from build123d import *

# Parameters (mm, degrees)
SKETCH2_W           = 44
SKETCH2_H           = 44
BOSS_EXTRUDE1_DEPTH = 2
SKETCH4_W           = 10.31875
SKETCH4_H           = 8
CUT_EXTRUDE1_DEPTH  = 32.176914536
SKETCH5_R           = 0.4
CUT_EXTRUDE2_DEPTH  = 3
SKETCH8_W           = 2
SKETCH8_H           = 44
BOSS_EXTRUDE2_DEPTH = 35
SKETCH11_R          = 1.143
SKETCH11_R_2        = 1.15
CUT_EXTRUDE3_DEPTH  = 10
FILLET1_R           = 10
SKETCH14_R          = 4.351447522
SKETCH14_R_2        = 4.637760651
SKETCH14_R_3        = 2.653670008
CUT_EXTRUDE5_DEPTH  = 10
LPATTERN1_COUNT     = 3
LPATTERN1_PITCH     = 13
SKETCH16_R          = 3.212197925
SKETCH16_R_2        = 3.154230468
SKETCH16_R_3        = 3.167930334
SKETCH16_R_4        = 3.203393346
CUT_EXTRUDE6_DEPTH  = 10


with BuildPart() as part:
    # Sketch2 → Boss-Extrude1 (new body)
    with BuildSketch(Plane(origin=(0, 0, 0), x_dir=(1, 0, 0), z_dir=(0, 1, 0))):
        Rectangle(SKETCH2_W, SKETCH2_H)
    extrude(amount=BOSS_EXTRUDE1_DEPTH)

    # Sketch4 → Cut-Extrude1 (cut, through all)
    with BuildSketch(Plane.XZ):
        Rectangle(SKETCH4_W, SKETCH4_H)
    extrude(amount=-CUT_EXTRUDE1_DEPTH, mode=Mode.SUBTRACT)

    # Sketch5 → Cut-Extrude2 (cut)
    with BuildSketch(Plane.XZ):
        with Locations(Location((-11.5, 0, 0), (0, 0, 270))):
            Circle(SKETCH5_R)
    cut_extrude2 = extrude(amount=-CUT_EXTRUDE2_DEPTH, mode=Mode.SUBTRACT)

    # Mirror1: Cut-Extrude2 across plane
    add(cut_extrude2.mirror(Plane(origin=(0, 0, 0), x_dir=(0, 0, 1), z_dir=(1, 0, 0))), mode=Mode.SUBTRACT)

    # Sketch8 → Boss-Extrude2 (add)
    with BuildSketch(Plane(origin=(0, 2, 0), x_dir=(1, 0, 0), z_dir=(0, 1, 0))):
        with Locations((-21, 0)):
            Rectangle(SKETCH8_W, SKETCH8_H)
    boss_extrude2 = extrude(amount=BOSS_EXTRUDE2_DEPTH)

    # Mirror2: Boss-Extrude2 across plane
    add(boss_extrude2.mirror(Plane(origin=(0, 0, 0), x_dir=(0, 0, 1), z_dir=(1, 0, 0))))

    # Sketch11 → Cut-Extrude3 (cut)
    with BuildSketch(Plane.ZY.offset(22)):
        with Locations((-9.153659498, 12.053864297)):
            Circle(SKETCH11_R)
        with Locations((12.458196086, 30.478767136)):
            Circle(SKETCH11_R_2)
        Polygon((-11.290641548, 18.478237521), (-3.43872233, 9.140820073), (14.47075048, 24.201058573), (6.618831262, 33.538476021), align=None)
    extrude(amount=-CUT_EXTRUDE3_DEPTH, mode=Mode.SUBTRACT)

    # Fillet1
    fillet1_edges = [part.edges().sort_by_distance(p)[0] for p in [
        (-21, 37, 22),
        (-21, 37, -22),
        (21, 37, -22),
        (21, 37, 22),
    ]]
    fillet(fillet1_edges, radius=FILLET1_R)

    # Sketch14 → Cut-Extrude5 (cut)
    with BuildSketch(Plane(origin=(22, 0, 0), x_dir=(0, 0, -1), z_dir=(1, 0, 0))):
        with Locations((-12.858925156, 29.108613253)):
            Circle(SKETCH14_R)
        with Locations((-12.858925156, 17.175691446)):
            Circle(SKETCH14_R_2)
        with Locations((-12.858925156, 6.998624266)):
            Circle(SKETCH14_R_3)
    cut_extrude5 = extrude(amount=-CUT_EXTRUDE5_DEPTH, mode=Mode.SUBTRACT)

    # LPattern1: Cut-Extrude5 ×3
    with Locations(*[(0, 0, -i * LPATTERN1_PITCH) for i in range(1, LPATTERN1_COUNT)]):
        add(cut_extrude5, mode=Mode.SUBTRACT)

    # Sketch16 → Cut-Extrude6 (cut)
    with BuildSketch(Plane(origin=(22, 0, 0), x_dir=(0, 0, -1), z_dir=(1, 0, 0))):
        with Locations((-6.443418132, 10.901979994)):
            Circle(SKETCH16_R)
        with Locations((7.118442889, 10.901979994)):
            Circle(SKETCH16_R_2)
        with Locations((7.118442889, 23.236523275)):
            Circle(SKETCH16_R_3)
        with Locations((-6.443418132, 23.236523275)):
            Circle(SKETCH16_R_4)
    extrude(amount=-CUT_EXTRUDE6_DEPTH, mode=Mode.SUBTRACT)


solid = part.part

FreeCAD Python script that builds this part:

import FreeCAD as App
import Part
import Sketcher

V = App.Vector
Q = App.Units.Quantity


def edges_at(feature, points):
    """Names of the edges that pass closest to the given points."""
    edges = feature.Shape.Edges
    near = lambda p: min(range(len(edges)), key=lambda i: edges[i].distToShape(Part.Vertex(*p))[0])
    return sorted({f"Edge{near(p) + 1}" for p in points})


def add_polygon(sketch, points):
    """Adds a closed chain of lines whose ends are joined by coincident constraints."""
    first, n = sketch.GeometryCount, len(points)
    for a, b in zip(points, points[1:] + points[:1]):
        sketch.addGeometry(Part.LineSegment(App.Vector(*a, 0), App.Vector(*b, 0)), False)
    for i in range(n):
        sketch.addConstraint(Sketcher.Constraint("Coincident", first + i, 2, first + (i + 1) % n, 1))

doc = App.newDocument("Part")
body = doc.addObject("PartDesign::Body", "Body")

# Sketch on XZ plane
sketch1 = doc.addObject("Sketcher::SketchObject", "Sketch")
body.addObject(sketch1)
sketch1.AttachmentSupport = (doc.XZ_Plane, [""])
sketch1.MapMode = "FlatFace"
add_polygon(sketch1, [(-22, -22), (-22, 22), (22, 22), (22, -22)])  # lines 0-3
sketch1.addConstraint(Sketcher.Constraint("Vertical", 0))
sketch1.addConstraint(Sketcher.Constraint("Horizontal", 1))
sketch1.addConstraint(Sketcher.Constraint("Vertical", 2))
sketch1.addConstraint(Sketcher.Constraint("Horizontal", 3))
sketch1.addConstraint(Sketcher.Constraint("Symmetric", 0, 2, 2, 2, -1, 1))
sketch1.addConstraint(Sketcher.Constraint("Equal", 3, 0))
sketch1.addConstraint(Sketcher.Constraint("DistanceX", 1, 1, 1, 2, Q("44 mm")))
pad1 = doc.addObject("PartDesign::Pad", "Pad")
body.addObject(pad1)
pad1.Profile = sketch1
pad1.Length = 2
pad1.Reversed = True

# Sketch on XZ plane
sketch2 = doc.addObject("Sketcher::SketchObject", "Sketch001")
body.addObject(sketch2)
sketch2.AttachmentSupport = (doc.XZ_Plane, [""])
sketch2.MapMode = "FlatFace"
add_polygon(sketch2, [(-5, 4), (-5, -4), (5, -4), (5, 4)])  # lines 0-3
sketch2.addConstraint(Sketcher.Constraint("Vertical", 0))
sketch2.addConstraint(Sketcher.Constraint("Horizontal", 1))
sketch2.addConstraint(Sketcher.Constraint("Vertical", 2))
sketch2.addConstraint(Sketcher.Constraint("Horizontal", 3))
sketch2.addConstraint(Sketcher.Constraint("Symmetric", 0, 2, 2, 2, -1, 1))
sketch2.addConstraint(Sketcher.Constraint("DistanceY", 0, 2, 0, 1, Q("8 mm")))
sketch2.addConstraint(Sketcher.Constraint("DistanceX", 1, 1, 1, 2, Q("10.31875 mm")))
pocket1 = doc.addObject("PartDesign::Pocket", "Pocket")
body.addObject(pocket1)
pocket1.Profile = sketch2
pocket1.Type = "ThroughAll"

# Sketch on XZ plane
sketch3 = doc.addObject("Sketcher::SketchObject", "Sketch002")
body.addObject(sketch3)
sketch3.AttachmentSupport = (doc.XZ_Plane, [""])
sketch3.MapMode = "FlatFace"
sketch3.addGeometry(Part.Circle(V(-11.5, 0, 0), V(0, 0, 1), 0.4), False)
sketch3.addConstraint(Sketcher.Constraint("PointOnObject", 0, 3, -1))
sketch3.addConstraint(Sketcher.Constraint("Diameter", 0, Q("0.8 mm")))
sketch3.addConstraint(Sketcher.Constraint("DistanceX", 0, 3, -1, 1, Q("11.5 mm")))
pocket2 = doc.addObject("PartDesign::Pocket", "Pocket001")
body.addObject(pocket2)
pocket2.Profile = sketch3
pocket2.Length = 3
doc.recompute()

mirrored = doc.addObject("PartDesign::Mirrored", "Mirrored")
body.addObject(mirrored)
mirrored.Originals = [pocket2]
mirrored.MirrorPlane = (doc.YZ_Plane, [""])
body.Tip = mirrored

# Sketch on XZ plane
sketch4 = doc.addObject("Sketcher::SketchObject", "Sketch003")
body.addObject(sketch4)
sketch4.AttachmentSupport = (doc.XZ_Plane, [""])
sketch4.MapMode = "FlatFace"
sketch4.AttachmentOffset = App.Placement(V(0, 0, -2), App.Rotation())
add_polygon(sketch4, [(-22, -22), (-22, 22), (-20, 22), (-20, -22)])  # lines 0-3
sketch4.addConstraint(Sketcher.Constraint("Vertical", 0))
sketch4.addConstraint(Sketcher.Constraint("Horizontal", 1))
sketch4.addConstraint(Sketcher.Constraint("Vertical", 2))
sketch4.addConstraint(Sketcher.Constraint("Horizontal", 3))
sketch4.addConstraint(Sketcher.Constraint("DistanceX", 1, 1, 1, 2, Q("2 mm")))
sketch4.addConstraint(Sketcher.Constraint("DistanceY", 0, 1, 0, 2, Q("44 mm")))
sketch4.addConstraint(Sketcher.Constraint("DistanceX", 0, 2, -1, 1, Q("22 mm")))
sketch4.addConstraint(Sketcher.Constraint("DistanceY", -1, 1, 0, 2, Q("22 mm")))
pad2 = doc.addObject("PartDesign::Pad", "Pad001")
body.addObject(pad2)
pad2.Profile = sketch4
pad2.Length = 35
pad2.Reversed = True
doc.recompute()

mirrored2 = doc.addObject("PartDesign::Mirrored", "Mirrored001")
body.addObject(mirrored2)
mirrored2.Originals = [pad2]
mirrored2.MirrorPlane = (doc.YZ_Plane, [""])
body.Tip = mirrored2

# Sketch on YZ plane
sketch5 = doc.addObject("Sketcher::SketchObject", "Sketch004")
body.addObject(sketch5)
sketch5.AttachmentSupport = (doc.YZ_Plane, [""])
sketch5.MapMode = "FlatFace"
sketch5.AttachmentOffset = App.Placement(V(0, 0, -22), App.Rotation())
sketch5.addGeometry(Part.Circle(V(12.1, -9.2, 0), V(0, 0, 1), 1.1), False)  # 0
sketch5.addGeometry(Part.Circle(V(30.5, 12.5, 0), V(0, 0, 1), 1.1), False)  # 1
add_polygon(sketch5, [(18.5, -11.3), (9.1, -3.4), (24.2, 14.5), (33.5, 6.6)])  # lines 2-5
sketch5.addConstraint(Sketcher.Constraint("Perpendicular", 2, 3))
sketch5.addConstraint(Sketcher.Constraint("Perpendicular", 3, 4))
sketch5.addConstraint(Sketcher.Constraint("Perpendicular", 4, 5))
sketch5.addConstraint(Sketcher.Constraint("Diameter", 1, Q("2.3 mm")))
sketch5.addConstraint(Sketcher.Constraint("Diameter", 0, Q("2.286 mm")))
sketch5.addConstraint(Sketcher.Constraint("Distance", 2, Q("12.2 mm")))
sketch5.addConstraint(Sketcher.Constraint("Distance", 3, Q("23.4 mm")))
sketch5.addConstraint(Sketcher.Constraint("DistanceY", 0, 3, -1, 1, Q("9.153659 mm")))
sketch5.addConstraint(Sketcher.Constraint("DistanceX", -1, 1, 2, 2, Q("9.14082 mm")))
sketch5.addConstraint(Sketcher.Constraint("DistanceX", -1, 1, 3, 2, Q("24.201059 mm")))
sketch5.addConstraint(Sketcher.Constraint("DistanceY", -1, 1, 3, 2, Q("14.47075 mm")))
sketch5.addConstraint(Sketcher.Constraint("DistanceY", 2, 2, 1, 3, Q("15.896918 mm")))
sketch5.addConstraint(Sketcher.Constraint("DistanceX", 3, 2, 1, 3, Q("6.277709 mm")))
sketch5.addConstraint(Sketcher.Constraint("DistanceX", 0, 3, 4, 2, Q("21.484612 mm")))
pocket3 = doc.addObject("PartDesign::Pocket", "Pocket002")
body.addObject(pocket3)
pocket3.Profile = sketch5
pocket3.Length = 10
pocket3.Reversed = True
doc.recompute()

fillet = doc.addObject("PartDesign::Fillet", "Fillet")
body.addObject(fillet)
fillet.Base = (pocket3, edges_at(pocket3, [
    (-21, 37, 22),
    (-21, 37, -22),
    (21, 37, -22),
    (21, 37, 22),
]))
fillet.Radius = 10

# Sketch on YZ plane
sketch6 = doc.addObject("Sketcher::SketchObject", "Sketch005")
body.addObject(sketch6)
sketch6.AttachmentSupport = (doc.YZ_Plane, [""])
sketch6.MapMode = "FlatFace"
sketch6.AttachmentOffset = App.Placement(V(0, 0, 22), App.Rotation())
sketch6.addGeometry(Part.Circle(V(29.1, 12.9, 0), V(0, 0, 1), 4.4), False)
sketch6.addGeometry(Part.Circle(V(17.2, 12.9, 0), V(0, 0, 1), 4.6), False)
sketch6.addGeometry(Part.Circle(V(7, 12.9, 0), V(0, 0, 1), 2.7), False)
sketch6.addConstraint(Sketcher.Constraint("Horizontal", 0, 3, 1, 3))
sketch6.addConstraint(Sketcher.Constraint("Horizontal", 1, 3, 2, 3))
sketch6.addConstraint(Sketcher.Constraint("Diameter", 1, Q("9.275521 mm")))
sketch6.addConstraint(Sketcher.Constraint("Diameter", 2, Q("5.30734 mm")))
sketch6.addConstraint(Sketcher.Constraint("Diameter", 0, Q("8.702895 mm")))
sketch6.addConstraint(Sketcher.Constraint("DistanceX", -1, 1, 1, 3, Q("17.175691 mm")))
sketch6.addConstraint(Sketcher.Constraint("DistanceX", 1, 3, 0, 3, Q("11.932922 mm")))
sketch6.addConstraint(Sketcher.Constraint("DistanceX", 2, 3, 0, 3, Q("22.109989 mm")))
sketch6.addConstraint(Sketcher.Constraint("DistanceY", -1, 1, 0, 3, Q("12.858925 mm")))
pocket4 = doc.addObject("PartDesign::Pocket", "Pocket003")
body.addObject(pocket4)
pocket4.Profile = sketch6
pocket4.Length = 10
doc.recompute()

linearpattern = doc.addObject("PartDesign::LinearPattern", "LinearPattern")
body.addObject(linearpattern)
linearpattern.Originals = [pocket4]
linearpattern.Direction = (doc.Z_Axis, [""])
linearpattern.Mode = "offset"
linearpattern.Offset = 13
linearpattern.Occurrences = 3
linearpattern.Reversed = True
body.Tip = linearpattern

# Sketch on YZ plane
sketch7 = doc.addObject("Sketcher::SketchObject", "Sketch006")
body.addObject(sketch7)
sketch7.AttachmentSupport = (doc.YZ_Plane, [""])
sketch7.MapMode = "FlatFace"
sketch7.AttachmentOffset = App.Placement(V(0, 0, 22), App.Rotation())
sketch7.addGeometry(Part.Circle(V(10.9, 6.4, 0), V(0, 0, 1), 3.2), False)
sketch7.addGeometry(Part.Circle(V(10.9, -7.1, 0), V(0, 0, 1), 3.2), False)
sketch7.addGeometry(Part.Circle(V(23.2, -7.1, 0), V(0, 0, 1), 3.2), False)
sketch7.addGeometry(Part.Circle(V(23.2, 6.4, 0), V(0, 0, 1), 3.2), False)
sketch7.addConstraint(Sketcher.Constraint("Horizontal", 1, 3, 2, 3))
sketch7.addConstraint(Sketcher.Constraint("Horizontal", 0, 3, 3, 3))
sketch7.addConstraint(Sketcher.Constraint("Vertical", 0, 3, 1, 3))
sketch7.addConstraint(Sketcher.Constraint("Vertical", 2, 3, 3, 3))
sketch7.addConstraint(Sketcher.Constraint("Diameter", 1, Q("6.308461 mm")))
sketch7.addConstraint(Sketcher.Constraint("Diameter", 2, Q("6.335861 mm")))
sketch7.addConstraint(Sketcher.Constraint("Diameter", 0, Q("6.424396 mm")))
sketch7.addConstraint(Sketcher.Constraint("Diameter", 3, Q("6.406787 mm")))
sketch7.addConstraint(Sketcher.Constraint("DistanceX", -1, 1, 0, 3, Q("10.90198 mm")))
sketch7.addConstraint(Sketcher.Constraint("DistanceY", -1, 1, 0, 3, Q("6.443418 mm")))
sketch7.addConstraint(Sketcher.Constraint("DistanceY", 1, 3, 0, 3, Q("13.561861 mm")))
sketch7.addConstraint(Sketcher.Constraint("DistanceX", -1, 1, 2, 3, Q("23.236523 mm")))
pocket5 = doc.addObject("PartDesign::Pocket", "Pocket004")
body.addObject(pocket5)
pocket5.Profile = sketch7
pocket5.Length = 10

doc.recompute()
